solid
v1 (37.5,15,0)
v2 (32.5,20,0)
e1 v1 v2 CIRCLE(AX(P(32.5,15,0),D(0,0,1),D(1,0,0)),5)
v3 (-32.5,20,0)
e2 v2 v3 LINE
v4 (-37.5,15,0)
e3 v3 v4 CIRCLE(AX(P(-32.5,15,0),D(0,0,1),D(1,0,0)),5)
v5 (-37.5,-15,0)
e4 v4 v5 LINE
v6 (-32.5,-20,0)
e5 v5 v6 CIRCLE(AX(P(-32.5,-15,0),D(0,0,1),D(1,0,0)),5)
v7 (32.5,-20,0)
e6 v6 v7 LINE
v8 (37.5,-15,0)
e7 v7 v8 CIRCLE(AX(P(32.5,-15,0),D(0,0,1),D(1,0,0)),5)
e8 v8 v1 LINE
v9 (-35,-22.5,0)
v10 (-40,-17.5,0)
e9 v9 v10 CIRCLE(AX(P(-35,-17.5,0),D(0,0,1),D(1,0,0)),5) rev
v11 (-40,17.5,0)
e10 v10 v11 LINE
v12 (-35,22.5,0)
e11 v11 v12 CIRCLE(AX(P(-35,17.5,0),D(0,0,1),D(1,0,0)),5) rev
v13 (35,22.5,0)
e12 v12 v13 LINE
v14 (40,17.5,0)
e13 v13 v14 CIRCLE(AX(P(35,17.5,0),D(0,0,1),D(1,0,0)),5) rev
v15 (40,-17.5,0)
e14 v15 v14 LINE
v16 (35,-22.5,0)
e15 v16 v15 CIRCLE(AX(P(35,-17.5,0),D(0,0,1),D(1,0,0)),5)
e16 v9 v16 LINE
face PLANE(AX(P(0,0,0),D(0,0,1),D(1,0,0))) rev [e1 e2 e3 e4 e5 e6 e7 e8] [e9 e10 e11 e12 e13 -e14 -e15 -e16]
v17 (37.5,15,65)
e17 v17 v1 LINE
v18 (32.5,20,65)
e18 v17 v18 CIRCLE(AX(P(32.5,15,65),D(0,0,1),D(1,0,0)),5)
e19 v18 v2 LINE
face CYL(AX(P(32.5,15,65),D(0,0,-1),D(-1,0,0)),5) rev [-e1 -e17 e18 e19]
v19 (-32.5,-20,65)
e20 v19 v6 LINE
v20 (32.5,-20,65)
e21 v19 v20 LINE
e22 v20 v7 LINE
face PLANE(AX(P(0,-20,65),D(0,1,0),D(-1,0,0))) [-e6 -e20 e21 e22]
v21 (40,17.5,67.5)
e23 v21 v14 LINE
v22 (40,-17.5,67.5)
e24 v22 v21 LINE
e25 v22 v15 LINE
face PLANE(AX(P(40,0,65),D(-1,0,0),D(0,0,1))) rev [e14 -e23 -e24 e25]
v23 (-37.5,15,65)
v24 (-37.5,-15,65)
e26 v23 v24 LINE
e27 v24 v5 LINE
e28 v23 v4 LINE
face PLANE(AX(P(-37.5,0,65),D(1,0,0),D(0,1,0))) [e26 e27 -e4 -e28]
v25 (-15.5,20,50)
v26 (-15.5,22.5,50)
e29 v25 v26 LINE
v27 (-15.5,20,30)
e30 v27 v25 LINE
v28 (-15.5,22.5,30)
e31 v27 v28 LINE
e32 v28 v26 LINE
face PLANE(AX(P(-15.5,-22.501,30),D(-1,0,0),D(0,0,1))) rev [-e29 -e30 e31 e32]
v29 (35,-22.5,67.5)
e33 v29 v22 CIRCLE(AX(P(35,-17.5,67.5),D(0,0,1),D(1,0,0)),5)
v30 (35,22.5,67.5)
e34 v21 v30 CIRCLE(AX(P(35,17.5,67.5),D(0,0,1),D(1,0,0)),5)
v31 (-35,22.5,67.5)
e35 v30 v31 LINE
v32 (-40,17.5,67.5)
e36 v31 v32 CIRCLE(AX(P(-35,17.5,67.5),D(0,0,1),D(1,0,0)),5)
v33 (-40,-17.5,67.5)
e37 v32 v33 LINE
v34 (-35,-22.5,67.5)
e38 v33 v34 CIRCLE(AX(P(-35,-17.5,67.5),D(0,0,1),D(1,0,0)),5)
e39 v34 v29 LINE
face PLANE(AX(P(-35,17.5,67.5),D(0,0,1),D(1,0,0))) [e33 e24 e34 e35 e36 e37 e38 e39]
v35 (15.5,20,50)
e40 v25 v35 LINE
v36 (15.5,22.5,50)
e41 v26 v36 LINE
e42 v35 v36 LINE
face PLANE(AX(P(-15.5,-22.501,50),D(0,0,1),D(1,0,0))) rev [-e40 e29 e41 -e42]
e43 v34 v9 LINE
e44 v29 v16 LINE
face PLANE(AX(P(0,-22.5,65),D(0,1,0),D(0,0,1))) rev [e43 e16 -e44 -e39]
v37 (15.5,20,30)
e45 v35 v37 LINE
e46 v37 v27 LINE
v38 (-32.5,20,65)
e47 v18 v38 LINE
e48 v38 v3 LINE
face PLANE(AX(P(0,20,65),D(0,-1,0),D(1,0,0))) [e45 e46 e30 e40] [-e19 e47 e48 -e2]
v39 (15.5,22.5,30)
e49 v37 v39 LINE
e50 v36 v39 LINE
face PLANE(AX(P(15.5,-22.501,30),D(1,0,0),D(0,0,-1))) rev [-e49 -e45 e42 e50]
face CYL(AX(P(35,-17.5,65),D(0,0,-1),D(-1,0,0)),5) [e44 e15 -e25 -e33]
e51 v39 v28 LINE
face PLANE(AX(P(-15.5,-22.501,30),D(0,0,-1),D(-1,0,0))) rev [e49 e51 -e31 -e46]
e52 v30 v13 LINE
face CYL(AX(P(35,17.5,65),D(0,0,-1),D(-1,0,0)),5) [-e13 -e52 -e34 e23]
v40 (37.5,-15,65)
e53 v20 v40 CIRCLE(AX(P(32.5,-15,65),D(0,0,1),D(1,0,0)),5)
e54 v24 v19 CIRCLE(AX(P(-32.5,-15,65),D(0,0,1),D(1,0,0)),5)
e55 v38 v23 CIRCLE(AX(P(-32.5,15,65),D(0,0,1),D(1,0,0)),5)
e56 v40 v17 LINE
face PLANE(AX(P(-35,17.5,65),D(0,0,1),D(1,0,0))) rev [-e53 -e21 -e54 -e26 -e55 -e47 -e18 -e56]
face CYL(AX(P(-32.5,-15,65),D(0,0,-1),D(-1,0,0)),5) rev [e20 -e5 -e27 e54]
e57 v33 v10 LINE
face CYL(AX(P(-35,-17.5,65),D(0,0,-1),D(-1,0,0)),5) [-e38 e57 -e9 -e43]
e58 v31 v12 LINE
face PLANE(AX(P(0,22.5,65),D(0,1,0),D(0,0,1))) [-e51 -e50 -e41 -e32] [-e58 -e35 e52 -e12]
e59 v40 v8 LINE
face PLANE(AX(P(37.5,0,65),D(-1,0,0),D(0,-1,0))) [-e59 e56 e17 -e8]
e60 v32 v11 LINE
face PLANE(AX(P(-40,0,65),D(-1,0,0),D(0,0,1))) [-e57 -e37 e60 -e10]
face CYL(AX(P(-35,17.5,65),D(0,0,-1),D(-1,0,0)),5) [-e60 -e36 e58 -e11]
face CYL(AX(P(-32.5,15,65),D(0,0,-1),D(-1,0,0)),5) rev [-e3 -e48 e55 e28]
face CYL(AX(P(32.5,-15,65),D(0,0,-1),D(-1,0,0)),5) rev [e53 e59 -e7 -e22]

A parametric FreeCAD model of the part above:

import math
import FreeCAD as App
import Part
import Sketcher
from FreeCAD import Vector
Q = App.Units.Quantity

doc = App.newDocument("Part")
body = doc.addObject("PartDesign::Body", "Body")

sketch1 = doc.addObject("Sketcher::SketchObject", "Sketch")
body.addObject(sketch1)
sketch1.AttachmentSupport = (doc.XY_Plane, [""])
sketch1.MapMode = "FlatFace"
sketch1.addGeometry([
    Part.ArcOfCircle(Part.Circle(Vector(-35, 17.5, 0), Vector(0, 0, 1), 5), math.radians(90), math.radians(180)),
    Part.LineSegment(Vector(-40, 17.5, 0), Vector(-40, -17.5, 0)),
    Part.ArcOfCircle(Part.Circle(Vector(-35, -17.5, 0), Vector(0, 0, 1), 5), math.radians(180), math.radians(270)),
    Part.LineSegment(Vector(-35, -22.5, 0), Vector(35, -22.5, 0)),
    Part.ArcOfCircle(Part.Circle(Vector(35, -17.5, 0), Vector(0, 0, 1), 5), math.radians(-90), math.radians(0)),
    Part.LineSegment(Vector(40, -17.5, 0), Vector(40, 17.5, 0)),
    Part.ArcOfCircle(Part.Circle(Vector(35, 17.5, 0), Vector(0, 0, 1), 5), math.radians(0), math.radians(90)),
    Part.LineSegment(Vector(35, 22.5, 0), Vector(-35, 22.5, 0)),
    Part.LineSegment(Vector(-32.5, 20, 0), Vector(32.5, 20, 0)),
    Part.ArcOfCircle(Part.Circle(Vector(32.5, 15, 0), Vector(0, 0, 1), 5), math.radians(0), math.radians(90)),
    Part.LineSegment(Vector(37.5, 15, 0), Vector(37.5, -15, 0)),
    Part.ArcOfCircle(Part.Circle(Vector(32.5, -15, 0), Vector(0, 0, 1), 5), math.radians(-90), math.radians(0)),
    Part.LineSegment(Vector(32.5, -20, 0), Vector(-32.5, -20, 0)),
    Part.ArcOfCircle(Part.Circle(Vector(-32.5, -15, 0), Vector(0, 0, 1), 5), math.radians(180), math.radians(270)),
    Part.LineSegment(Vector(-37.5, -15, 0), Vector(-37.5, 15, 0)),
    Part.ArcOfCircle(Part.Circle(Vector(-32.5, 15, 0), Vector(0, 0, 1), 5), math.radians(90), math.radians(180)),
], False)
sketch1.addConstraint([
    Sketcher.Constraint("Tangent", 0, 2, 1, 1),
    Sketcher.Constraint("Tangent", 1, 2, 2, 1),
    Sketcher.Constraint("Tangent", 2, 2, 3, 1),
    Sketcher.Constraint("Tangent", 3, 2, 4, 1),
    Sketcher.Constraint("Tangent", 4, 2, 5, 1),
    Sketcher.Constraint("Tangent", 5, 2, 6, 1),
    Sketcher.Constraint("Tangent", 6, 2, 7, 1),
    Sketcher.Constraint("Tangent", 7, 2, 0, 1),
    Sketcher.Constraint("Tangent", 8, 2, 9, 2),
    Sketcher.Constraint("Tangent", 9, 1, 10, 1),
    Sketcher.Constraint("Tangent", 10, 2, 11, 2),
    Sketcher.Constraint("Tangent", 11, 1, 12, 1),
    Sketcher.Constraint("Tangent", 12, 2, 13, 2),
    Sketcher.Constraint("Tangent", 13, 1, 14, 1),
    Sketcher.Constraint("Tangent", 14, 2, 15, 2),
    Sketcher.Constraint("Tangent", 15, 1, 8, 1),
    Sketcher.Constraint("Vertical", 1),
    Sketcher.Constraint("Horizontal", 3),
    Sketcher.Constraint("Vertical", 5),
    Sketcher.Constraint("Horizontal", 7),
    Sketcher.Constraint("Horizontal", 8),
    Sketcher.Constraint("Vertical", 10),
    Sketcher.Constraint("Horizontal", 12),
    Sketcher.Constraint("Vertical", 14),
    Sketcher.Constraint("Equal", 0, 2),
    Sketcher.Constraint("Equal", 2, 4),
    Sketcher.Constraint("Equal", 4, 6),
    Sketcher.Constraint("Equal", 6, 9),
    Sketcher.Constraint("Equal", 9, 11),
    Sketcher.Constraint("Equal", 11, 13),
    Sketcher.Constraint("Equal", 13, 15),
    Sketcher.Constraint("Symmetric", 0, 3, 4, 3, -1, 1),
    Sketcher.Constraint("Symmetric", 9, 3, 13, 3, -1, 1),
    Sketcher.Constraint("Radius", 0, Q("5 mm")),
    Sketcher.Constraint("DistanceX", 3, 1, 3, 2, Q("70 mm")),
    Sketcher.Constraint("DistanceX", 8, 1, 8, 2, Q("65 mm")),
    Sketcher.Constraint("DistanceY", 1, 2, 1, 1, Q("35 mm")),
    Sketcher.Constraint("DistanceY", 10, 2, 10, 1, Q("30 mm")),
])
pad1 = doc.addObject("PartDesign::Pad", "Pad")
body.addObject(pad1)
pad1.Profile = sketch1
pad1.Length = 65

sketch2 = doc.addObject("Sketcher::SketchObject", "Sketch001")
body.addObject(sketch2)
sketch2.AttachmentSupport = (doc.XY_Plane, [""])
sketch2.MapMode = "FlatFace"
sketch2.AttachmentOffset = App.Placement(Vector(0, 0, 65), App.Rotation())
sketch2.addGeometry([
    Part.LineSegment(Vector(-40, 17.5, 0), Vector(-40, -17.5, 0)),
    Part.ArcOfCircle(Part.Circle(Vector(-35, -17.5, 0), Vector(0, 0, 1), 5), math.radians(180), math.radians(270)),
    Part.LineSegment(Vector(-35, -22.5, 0), Vector(35, -22.5, 0)),
    Part.ArcOfCircle(Part.Circle(Vector(35, -17.5, 0), Vector(0, 0, 1), 5), math.radians(-90), math.radians(0)),
    Part.LineSegment(Vector(40, -17.5, 0), Vector(40, 17.5, 0)),
    Part.ArcOfCircle(Part.Circle(Vector(35, 17.5, 0), Vector(0, 0, 1), 5), math.radians(0), math.radians(90)),
    Part.LineSegment(Vector(35, 22.5, 0), Vector(-35, 22.5, 0)),
    Part.ArcOfCircle(Part.Circle(Vector(-35, 17.5, 0), Vector(0, 0, 1), 5), math.radians(90), math.radians(180)),
], False)
sketch2.addConstraint([
    Sketcher.Constraint("Tangent", 0, 2, 1, 1),
    Sketcher.Constraint("Tangent", 1, 2, 2, 1),
    Sketcher.Constraint("Tangent", 2, 2, 3, 1),
    Sketcher.Constraint("Tangent", 3, 2, 4, 1),
    Sketcher.Constraint("Tangent", 4, 2, 5, 1),
    Sketcher.Constraint("Tangent", 5, 2, 6, 1),
    Sketcher.Constraint("Tangent", 6, 2, 7, 1),
    Sketcher.Constraint("Tangent", 7, 2, 0, 1),
    Sketcher.Constraint("Vertical", 0),
    Sketcher.Constraint("Horizontal", 2),
    Sketcher.Constraint("Vertical", 4),
    Sketcher.Constraint("Horizontal", 6),
    Sketcher.Constraint("Equal", 1, 3),
    Sketcher.Constraint("Equal", 3, 5),
    Sketcher.Constraint("Equal", 5, 7),
    Sketcher.Constraint("Symmetric", 1, 3, 5, 3, -1, 1),
    Sketcher.Constraint("Radius", 1, Q("5 mm")),
    Sketcher.Constraint("DistanceX", 2, 1, 2, 2, Q("70 mm")),
    Sketcher.Constraint("DistanceY", 0, 2, 0, 1, Q("35 mm")),
])
pad2 = doc.addObject("PartDesign::Pad", "Pad001")
body.addObject(pad2)
pad2.Profile = sketch2
pad2.Length = 2.5

sketch3 = doc.addObject("Sketcher::SketchObject", "Sketch002")
body.addObject(sketch3)
sketch3.AttachmentSupport = (doc.XZ_Plane, [""])
sketch3.MapMode = "FlatFace"
sketch3.AttachmentOffset = App.Placement(Vector(0, 0, -22.5), App.Rotation())
sketch3.addGeometry([
    Part.LineSegment(Vector(-15.5, 30, 0), Vector(-15.5, 50, 0)),
    Part.LineSegment(Vector(-15.5, 50, 0), Vector(15.5, 50, 0)),
    Part.LineSegment(Vector(15.5, 50, 0), Vector(15.5, 30, 0)),
    Part.LineSegment(Vector(15.5, 30, 0), Vector(-15.5, 30, 0)),
], False)
sketch3.addConstraint([
    Sketcher.Constraint("Coincident", 0, 2, 1, 1),
    Sketcher.Constraint("Coincident", 1, 2, 2, 1),
    Sketcher.Constraint("Coincident", 2, 2, 3, 1),
    Sketcher.Constraint("Coincident", 3, 2, 0, 1),
    Sketcher.Constraint("Vertical", 0),
    Sketcher.Constraint("Horizontal", 1),
    Sketcher.Constraint("Vertical", 2),
    Sketcher.Constraint("Horizontal", 3),
    Sketcher.Constraint("DistanceX", 1, 1, 1, 2, Q("31 mm")),
    Sketcher.Constraint("DistanceY", 0, 1, 0, 2, Q("20 mm")),
    Sketcher.Constraint("DistanceY", -1, 1, 0, 2, Q("50 mm")),
    Sketcher.Constraint("DistanceX", 0, 2, -1, 1, Q("15.5 mm")),
])
pocket1 = doc.addObject("PartDesign::Pocket", "Pocket")
body.addObject(pocket1)
pocket1.Profile = sketch3
pocket1.Type = "UpToFirst"
pocket1.Reversed = True

doc.recompute()
